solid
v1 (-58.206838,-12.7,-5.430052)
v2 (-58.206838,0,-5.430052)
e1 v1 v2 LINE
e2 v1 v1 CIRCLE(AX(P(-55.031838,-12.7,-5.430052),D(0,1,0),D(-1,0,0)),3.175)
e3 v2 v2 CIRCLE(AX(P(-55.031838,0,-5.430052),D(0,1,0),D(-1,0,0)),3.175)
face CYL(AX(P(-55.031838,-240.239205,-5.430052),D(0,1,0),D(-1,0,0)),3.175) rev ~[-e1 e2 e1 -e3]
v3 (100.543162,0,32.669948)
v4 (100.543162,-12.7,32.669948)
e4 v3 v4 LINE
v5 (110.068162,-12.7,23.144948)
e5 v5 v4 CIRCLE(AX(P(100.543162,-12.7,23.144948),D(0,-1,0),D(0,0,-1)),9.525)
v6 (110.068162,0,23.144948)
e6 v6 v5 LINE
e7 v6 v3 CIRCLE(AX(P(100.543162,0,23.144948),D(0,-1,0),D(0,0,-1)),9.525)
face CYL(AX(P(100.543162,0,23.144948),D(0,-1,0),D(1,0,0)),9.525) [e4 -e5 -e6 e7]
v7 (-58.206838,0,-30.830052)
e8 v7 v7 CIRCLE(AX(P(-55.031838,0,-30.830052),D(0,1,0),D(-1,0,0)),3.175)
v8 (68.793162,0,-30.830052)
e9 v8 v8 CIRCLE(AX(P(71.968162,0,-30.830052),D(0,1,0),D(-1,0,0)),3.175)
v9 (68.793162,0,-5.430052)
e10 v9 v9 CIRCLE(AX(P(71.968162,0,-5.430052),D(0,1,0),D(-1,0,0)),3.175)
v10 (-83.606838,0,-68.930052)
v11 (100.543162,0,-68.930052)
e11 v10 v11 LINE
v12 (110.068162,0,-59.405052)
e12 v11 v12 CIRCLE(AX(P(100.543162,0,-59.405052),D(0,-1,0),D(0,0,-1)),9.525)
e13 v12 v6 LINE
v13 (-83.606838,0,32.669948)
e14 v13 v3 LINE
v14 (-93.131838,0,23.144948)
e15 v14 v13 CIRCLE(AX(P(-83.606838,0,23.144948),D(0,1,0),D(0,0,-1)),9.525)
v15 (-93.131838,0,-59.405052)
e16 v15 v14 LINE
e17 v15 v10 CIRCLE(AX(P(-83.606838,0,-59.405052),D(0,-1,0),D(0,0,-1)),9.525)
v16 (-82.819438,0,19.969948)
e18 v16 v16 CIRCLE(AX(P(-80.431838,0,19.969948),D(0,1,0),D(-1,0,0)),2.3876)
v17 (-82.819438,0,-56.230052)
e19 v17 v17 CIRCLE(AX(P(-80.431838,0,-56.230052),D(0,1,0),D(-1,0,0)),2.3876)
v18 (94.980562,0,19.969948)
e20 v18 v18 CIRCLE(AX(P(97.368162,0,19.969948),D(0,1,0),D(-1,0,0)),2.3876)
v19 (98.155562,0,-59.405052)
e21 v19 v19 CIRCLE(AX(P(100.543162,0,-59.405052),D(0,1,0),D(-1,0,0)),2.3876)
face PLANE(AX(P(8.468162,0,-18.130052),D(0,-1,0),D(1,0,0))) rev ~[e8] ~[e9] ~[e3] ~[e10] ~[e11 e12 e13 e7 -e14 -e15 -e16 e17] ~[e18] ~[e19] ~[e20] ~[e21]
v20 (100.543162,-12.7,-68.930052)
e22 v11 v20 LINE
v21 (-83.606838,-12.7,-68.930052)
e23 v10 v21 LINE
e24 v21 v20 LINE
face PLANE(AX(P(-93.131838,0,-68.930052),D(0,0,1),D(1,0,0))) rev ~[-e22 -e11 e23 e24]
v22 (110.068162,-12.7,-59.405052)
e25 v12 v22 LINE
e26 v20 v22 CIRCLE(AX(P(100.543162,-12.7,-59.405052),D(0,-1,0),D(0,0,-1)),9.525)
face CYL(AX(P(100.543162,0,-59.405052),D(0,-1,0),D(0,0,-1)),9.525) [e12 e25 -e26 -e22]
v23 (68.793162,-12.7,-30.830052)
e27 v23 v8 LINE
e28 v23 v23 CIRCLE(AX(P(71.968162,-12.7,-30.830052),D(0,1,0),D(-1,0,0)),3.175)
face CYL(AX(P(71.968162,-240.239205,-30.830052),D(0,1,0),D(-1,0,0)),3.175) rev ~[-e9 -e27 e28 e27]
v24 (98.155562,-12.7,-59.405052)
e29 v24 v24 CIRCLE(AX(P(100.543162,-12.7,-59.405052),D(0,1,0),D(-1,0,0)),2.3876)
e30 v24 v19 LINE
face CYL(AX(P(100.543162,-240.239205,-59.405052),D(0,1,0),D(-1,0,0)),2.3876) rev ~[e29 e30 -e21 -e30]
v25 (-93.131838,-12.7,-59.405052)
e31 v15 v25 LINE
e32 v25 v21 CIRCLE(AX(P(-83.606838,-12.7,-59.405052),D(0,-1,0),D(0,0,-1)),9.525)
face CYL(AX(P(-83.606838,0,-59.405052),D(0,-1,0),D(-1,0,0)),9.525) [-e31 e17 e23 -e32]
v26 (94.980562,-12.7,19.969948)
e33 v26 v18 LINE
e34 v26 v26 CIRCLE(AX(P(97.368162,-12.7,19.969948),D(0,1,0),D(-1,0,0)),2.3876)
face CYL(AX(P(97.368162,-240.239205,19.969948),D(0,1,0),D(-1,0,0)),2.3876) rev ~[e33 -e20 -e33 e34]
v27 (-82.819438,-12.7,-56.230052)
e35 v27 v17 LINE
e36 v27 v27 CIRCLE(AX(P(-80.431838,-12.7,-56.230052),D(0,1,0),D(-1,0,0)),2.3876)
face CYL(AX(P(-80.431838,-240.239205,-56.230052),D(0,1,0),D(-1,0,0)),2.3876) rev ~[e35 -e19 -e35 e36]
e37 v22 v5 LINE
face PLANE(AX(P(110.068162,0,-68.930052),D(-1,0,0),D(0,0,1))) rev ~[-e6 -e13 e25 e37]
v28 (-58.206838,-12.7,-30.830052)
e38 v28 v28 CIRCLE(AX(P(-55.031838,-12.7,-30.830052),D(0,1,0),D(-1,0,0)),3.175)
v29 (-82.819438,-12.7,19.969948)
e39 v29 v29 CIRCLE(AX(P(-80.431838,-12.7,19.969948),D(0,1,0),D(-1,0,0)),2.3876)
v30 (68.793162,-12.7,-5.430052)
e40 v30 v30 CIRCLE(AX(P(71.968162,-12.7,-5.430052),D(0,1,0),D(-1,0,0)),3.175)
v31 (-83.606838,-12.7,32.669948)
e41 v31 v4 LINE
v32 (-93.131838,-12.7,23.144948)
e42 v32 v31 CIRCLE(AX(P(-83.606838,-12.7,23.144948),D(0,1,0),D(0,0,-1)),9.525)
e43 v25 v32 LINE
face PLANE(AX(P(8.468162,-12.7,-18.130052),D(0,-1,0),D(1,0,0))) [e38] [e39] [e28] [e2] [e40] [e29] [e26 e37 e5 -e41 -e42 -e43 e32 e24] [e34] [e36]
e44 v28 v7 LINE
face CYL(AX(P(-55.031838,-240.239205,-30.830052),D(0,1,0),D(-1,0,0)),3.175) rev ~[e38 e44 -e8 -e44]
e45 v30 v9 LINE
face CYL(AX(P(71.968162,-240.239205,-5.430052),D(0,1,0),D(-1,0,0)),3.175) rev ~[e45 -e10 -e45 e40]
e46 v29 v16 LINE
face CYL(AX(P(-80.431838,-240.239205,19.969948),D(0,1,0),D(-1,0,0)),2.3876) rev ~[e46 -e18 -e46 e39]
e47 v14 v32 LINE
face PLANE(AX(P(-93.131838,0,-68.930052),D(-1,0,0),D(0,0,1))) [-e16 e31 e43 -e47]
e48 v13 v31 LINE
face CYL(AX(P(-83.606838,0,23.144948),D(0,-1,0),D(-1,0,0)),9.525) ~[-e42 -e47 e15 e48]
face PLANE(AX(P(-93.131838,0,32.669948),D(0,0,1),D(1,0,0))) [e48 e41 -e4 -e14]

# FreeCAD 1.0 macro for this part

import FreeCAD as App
import Part
import Sketcher
Q = App.Units.Quantity


def edges_at(feature, points):
    """Names of the edges that pass closest to the given points."""
    edges = feature.Shape.Edges
    near = lambda p: min(range(len(edges)), key=lambda i: edges[i].distToShape(Part.Vertex(*p))[0])
    return sorted({f"Edge{near(p) + 1}" for p in points})


def add_polygon(sketch, points):
    """Adds a closed chain of lines whose ends are joined by coincident constraints."""
    first, n = sketch.GeometryCount, len(points)
    for a, b in zip(points, points[1:] + points[:1]):
        sketch.addGeometry(Part.LineSegment(App.Vector(*a, 0), App.Vector(*b, 0)), False)
    for i in range(n):
        sketch.addConstraint(Sketcher.Constraint("Coincident", first + i, 2, first + (i + 1) % n, 1))

doc = App.newDocument("Part")
body = doc.addObject("PartDesign::Body", "Body")

# Sketch on XZ plane
sketch1 = doc.addObject("Sketcher::SketchObject", "Sketch")
body.addObject(sketch1)
sketch1.AttachmentSupport = (doc.XZ_Plane, [""])
sketch1.MapMode = "FlatFace"
add_polygon(sketch1, [(-93, 33), (-93, -69), (110, -69), (110, 33)])  # lines 0-3
sketch1.addConstraint([
    Sketcher.Constraint("Vertical", 0),
    Sketcher.Constraint("Horizontal", 1),
    Sketcher.Constraint("Vertical", 2),
    Sketcher.Constraint("Horizontal", 3),
    Sketcher.Constraint("DistanceX", 1, 1, 1, 2, Q("8 in")),
    Sketcher.Constraint("DistanceY", 0, 2, 0, 1, Q("4 in")),
    Sketcher.Constraint("DistanceX", 0, 2, -1, 1, 93.131838),
    Sketcher.Constraint("DistanceY", 0, 2, -1, 1, 68.930052),
])
pad1 = doc.addObject("PartDesign::Pad", "Pad")
body.addObject(pad1)
pad1.Profile = sketch1
pad1.Length = Q("0.5 in")
doc.recompute()

fillet = doc.addObject("PartDesign::Fillet", "Fillet")
body.addObject(fillet)
fillet.Base = (pad1, edges_at(pad1, [
    (-93.132, -6.35, 32.67),
    (-93.132, -6.35, -68.93),
    (110.068, -6.35, -68.93),
    (110.068, -6.35, 32.67),
]))
fillet.Radius = Q("0.375 in")

# Sketch on XZ plane
sketch2 = doc.addObject("Sketcher::SketchObject", "Sketch001")
body.addObject(sketch2)
sketch2.AttachmentSupport = (doc.XZ_Plane, [""])
sketch2.MapMode = "FlatFace"
sketch2.AttachmentOffset = App.Placement(App.Vector(0, 0, 0.5 * 25.4), App.Rotation())
sketch2.addGeometry([
    Part.Circle(App.Vector(-80.4, 20, 0), App.Vector(0, 0, 1), 2.4),
    Part.Circle(App.Vector(-80.4, -56.2, 0), App.Vector(0, 0, 1), 2.4),
    Part.Circle(App.Vector(97.4, 20, 0), App.Vector(0, 0, 1), 2.4),
    Part.Circle(App.Vector(100.5, -59.4, 0), App.Vector(0, 0, 1), 2.4),
], False)
sketch2.addConstraint([
    Sketcher.Constraint("Equal", 0, 1),
    Sketcher.Constraint("Equal", 1, 2),
    Sketcher.Constraint("Equal", 2, 3),
    Sketcher.Constraint("Horizontal", 0, 3, 2, 3),
    Sketcher.Constraint("Vertical", 0, 3, 1, 3),
    Sketcher.Constraint("Diameter", 0, Q("0.188 in")),
    Sketcher.Constraint("DistanceY", 1, 3, 0, 3, Q("3 in")),
    Sketcher.Constraint("DistanceX", 0, 3, 2, 3, Q("7 in")),
    Sketcher.Constraint("DistanceX", 2, 3, 3, 3, Q("0.125 in")),
    Sketcher.Constraint("DistanceY", 3, 3, 2, 3, Q("3.125 in")),
    Sketcher.Constraint("DistanceX", 0, 3, -1, 1, 80.431838),
    Sketcher.Constraint("DistanceY", 3, 3, -1, 1, 59.405052),
])
doc.recompute()
hole = doc.addObject("PartDesign::Hole", "Hole")
body.addObject(hole)
hole.Profile = sketch2
hole.ThreadType = "None"
hole.Diameter = Q("0.188 in")
hole.DepthType = "ThroughAll"

# Sketch on XZ plane
sketch3 = doc.addObject("Sketcher::SketchObject", "Sketch002")
body.addObject(sketch3)
sketch3.AttachmentSupport = (doc.XZ_Plane, [""])
sketch3.MapMode = "FlatFace"
sketch3.AttachmentOffset = App.Placement(App.Vector(0, 0, 0.5 * 25.4), App.Rotation())
sketch3.addGeometry([
    Part.Circle(App.Vector(-55, -5.4, 0), App.Vector(0, 0, 1), 3.2),
    Part.Circle(App.Vector(-55, -30.8, 0), App.Vector(0, 0, 1), 3.2),
    Part.Circle(App.Vector(72, -5.4, 0), App.Vector(0, 0, 1), 3.2),
    Part.Circle(App.Vector(72, -30.8, 0), App.Vector(0, 0, 1), 3.2),
], False)
sketch3.addConstraint([
    Sketcher.Constraint("Equal", 0, 1),
    Sketcher.Constraint("Equal", 1, 2),
    Sketcher.Constraint("Equal", 2, 3),
    Sketcher.Constraint("Horizontal", 0, 3, 2, 3),
    Sketcher.Constraint("Horizontal", 1, 3, 3, 3),
    Sketcher.Constraint("Vertical", 0, 3, 1, 3),
    Sketcher.Constraint("Vertical", 2, 3, 3, 3),
    Sketcher.Constraint("Diameter", 0, Q("0.25 in")),
    Sketcher.Constraint("DistanceY", 1, 3, 0, 3, Q("1 in")),
    Sketcher.Constraint("DistanceX", 0, 3, 2, 3, Q("5 in")),
    Sketcher.Constraint("DistanceY", 1, 3, -1, 1, 30.830052),
    Sketcher.Constraint("DistanceX", 0, 3, -1, 1, 55.031838),
])
doc.recompute()
hole2 = doc.addObject("PartDesign::Hole", "Hole001")
body.addObject(hole2)
hole2.Profile = sketch3
hole2.ThreadType = "None"
hole2.Diameter = Q("0.25 in")
hole2.DepthType = "ThroughAll"

doc.recompute()
